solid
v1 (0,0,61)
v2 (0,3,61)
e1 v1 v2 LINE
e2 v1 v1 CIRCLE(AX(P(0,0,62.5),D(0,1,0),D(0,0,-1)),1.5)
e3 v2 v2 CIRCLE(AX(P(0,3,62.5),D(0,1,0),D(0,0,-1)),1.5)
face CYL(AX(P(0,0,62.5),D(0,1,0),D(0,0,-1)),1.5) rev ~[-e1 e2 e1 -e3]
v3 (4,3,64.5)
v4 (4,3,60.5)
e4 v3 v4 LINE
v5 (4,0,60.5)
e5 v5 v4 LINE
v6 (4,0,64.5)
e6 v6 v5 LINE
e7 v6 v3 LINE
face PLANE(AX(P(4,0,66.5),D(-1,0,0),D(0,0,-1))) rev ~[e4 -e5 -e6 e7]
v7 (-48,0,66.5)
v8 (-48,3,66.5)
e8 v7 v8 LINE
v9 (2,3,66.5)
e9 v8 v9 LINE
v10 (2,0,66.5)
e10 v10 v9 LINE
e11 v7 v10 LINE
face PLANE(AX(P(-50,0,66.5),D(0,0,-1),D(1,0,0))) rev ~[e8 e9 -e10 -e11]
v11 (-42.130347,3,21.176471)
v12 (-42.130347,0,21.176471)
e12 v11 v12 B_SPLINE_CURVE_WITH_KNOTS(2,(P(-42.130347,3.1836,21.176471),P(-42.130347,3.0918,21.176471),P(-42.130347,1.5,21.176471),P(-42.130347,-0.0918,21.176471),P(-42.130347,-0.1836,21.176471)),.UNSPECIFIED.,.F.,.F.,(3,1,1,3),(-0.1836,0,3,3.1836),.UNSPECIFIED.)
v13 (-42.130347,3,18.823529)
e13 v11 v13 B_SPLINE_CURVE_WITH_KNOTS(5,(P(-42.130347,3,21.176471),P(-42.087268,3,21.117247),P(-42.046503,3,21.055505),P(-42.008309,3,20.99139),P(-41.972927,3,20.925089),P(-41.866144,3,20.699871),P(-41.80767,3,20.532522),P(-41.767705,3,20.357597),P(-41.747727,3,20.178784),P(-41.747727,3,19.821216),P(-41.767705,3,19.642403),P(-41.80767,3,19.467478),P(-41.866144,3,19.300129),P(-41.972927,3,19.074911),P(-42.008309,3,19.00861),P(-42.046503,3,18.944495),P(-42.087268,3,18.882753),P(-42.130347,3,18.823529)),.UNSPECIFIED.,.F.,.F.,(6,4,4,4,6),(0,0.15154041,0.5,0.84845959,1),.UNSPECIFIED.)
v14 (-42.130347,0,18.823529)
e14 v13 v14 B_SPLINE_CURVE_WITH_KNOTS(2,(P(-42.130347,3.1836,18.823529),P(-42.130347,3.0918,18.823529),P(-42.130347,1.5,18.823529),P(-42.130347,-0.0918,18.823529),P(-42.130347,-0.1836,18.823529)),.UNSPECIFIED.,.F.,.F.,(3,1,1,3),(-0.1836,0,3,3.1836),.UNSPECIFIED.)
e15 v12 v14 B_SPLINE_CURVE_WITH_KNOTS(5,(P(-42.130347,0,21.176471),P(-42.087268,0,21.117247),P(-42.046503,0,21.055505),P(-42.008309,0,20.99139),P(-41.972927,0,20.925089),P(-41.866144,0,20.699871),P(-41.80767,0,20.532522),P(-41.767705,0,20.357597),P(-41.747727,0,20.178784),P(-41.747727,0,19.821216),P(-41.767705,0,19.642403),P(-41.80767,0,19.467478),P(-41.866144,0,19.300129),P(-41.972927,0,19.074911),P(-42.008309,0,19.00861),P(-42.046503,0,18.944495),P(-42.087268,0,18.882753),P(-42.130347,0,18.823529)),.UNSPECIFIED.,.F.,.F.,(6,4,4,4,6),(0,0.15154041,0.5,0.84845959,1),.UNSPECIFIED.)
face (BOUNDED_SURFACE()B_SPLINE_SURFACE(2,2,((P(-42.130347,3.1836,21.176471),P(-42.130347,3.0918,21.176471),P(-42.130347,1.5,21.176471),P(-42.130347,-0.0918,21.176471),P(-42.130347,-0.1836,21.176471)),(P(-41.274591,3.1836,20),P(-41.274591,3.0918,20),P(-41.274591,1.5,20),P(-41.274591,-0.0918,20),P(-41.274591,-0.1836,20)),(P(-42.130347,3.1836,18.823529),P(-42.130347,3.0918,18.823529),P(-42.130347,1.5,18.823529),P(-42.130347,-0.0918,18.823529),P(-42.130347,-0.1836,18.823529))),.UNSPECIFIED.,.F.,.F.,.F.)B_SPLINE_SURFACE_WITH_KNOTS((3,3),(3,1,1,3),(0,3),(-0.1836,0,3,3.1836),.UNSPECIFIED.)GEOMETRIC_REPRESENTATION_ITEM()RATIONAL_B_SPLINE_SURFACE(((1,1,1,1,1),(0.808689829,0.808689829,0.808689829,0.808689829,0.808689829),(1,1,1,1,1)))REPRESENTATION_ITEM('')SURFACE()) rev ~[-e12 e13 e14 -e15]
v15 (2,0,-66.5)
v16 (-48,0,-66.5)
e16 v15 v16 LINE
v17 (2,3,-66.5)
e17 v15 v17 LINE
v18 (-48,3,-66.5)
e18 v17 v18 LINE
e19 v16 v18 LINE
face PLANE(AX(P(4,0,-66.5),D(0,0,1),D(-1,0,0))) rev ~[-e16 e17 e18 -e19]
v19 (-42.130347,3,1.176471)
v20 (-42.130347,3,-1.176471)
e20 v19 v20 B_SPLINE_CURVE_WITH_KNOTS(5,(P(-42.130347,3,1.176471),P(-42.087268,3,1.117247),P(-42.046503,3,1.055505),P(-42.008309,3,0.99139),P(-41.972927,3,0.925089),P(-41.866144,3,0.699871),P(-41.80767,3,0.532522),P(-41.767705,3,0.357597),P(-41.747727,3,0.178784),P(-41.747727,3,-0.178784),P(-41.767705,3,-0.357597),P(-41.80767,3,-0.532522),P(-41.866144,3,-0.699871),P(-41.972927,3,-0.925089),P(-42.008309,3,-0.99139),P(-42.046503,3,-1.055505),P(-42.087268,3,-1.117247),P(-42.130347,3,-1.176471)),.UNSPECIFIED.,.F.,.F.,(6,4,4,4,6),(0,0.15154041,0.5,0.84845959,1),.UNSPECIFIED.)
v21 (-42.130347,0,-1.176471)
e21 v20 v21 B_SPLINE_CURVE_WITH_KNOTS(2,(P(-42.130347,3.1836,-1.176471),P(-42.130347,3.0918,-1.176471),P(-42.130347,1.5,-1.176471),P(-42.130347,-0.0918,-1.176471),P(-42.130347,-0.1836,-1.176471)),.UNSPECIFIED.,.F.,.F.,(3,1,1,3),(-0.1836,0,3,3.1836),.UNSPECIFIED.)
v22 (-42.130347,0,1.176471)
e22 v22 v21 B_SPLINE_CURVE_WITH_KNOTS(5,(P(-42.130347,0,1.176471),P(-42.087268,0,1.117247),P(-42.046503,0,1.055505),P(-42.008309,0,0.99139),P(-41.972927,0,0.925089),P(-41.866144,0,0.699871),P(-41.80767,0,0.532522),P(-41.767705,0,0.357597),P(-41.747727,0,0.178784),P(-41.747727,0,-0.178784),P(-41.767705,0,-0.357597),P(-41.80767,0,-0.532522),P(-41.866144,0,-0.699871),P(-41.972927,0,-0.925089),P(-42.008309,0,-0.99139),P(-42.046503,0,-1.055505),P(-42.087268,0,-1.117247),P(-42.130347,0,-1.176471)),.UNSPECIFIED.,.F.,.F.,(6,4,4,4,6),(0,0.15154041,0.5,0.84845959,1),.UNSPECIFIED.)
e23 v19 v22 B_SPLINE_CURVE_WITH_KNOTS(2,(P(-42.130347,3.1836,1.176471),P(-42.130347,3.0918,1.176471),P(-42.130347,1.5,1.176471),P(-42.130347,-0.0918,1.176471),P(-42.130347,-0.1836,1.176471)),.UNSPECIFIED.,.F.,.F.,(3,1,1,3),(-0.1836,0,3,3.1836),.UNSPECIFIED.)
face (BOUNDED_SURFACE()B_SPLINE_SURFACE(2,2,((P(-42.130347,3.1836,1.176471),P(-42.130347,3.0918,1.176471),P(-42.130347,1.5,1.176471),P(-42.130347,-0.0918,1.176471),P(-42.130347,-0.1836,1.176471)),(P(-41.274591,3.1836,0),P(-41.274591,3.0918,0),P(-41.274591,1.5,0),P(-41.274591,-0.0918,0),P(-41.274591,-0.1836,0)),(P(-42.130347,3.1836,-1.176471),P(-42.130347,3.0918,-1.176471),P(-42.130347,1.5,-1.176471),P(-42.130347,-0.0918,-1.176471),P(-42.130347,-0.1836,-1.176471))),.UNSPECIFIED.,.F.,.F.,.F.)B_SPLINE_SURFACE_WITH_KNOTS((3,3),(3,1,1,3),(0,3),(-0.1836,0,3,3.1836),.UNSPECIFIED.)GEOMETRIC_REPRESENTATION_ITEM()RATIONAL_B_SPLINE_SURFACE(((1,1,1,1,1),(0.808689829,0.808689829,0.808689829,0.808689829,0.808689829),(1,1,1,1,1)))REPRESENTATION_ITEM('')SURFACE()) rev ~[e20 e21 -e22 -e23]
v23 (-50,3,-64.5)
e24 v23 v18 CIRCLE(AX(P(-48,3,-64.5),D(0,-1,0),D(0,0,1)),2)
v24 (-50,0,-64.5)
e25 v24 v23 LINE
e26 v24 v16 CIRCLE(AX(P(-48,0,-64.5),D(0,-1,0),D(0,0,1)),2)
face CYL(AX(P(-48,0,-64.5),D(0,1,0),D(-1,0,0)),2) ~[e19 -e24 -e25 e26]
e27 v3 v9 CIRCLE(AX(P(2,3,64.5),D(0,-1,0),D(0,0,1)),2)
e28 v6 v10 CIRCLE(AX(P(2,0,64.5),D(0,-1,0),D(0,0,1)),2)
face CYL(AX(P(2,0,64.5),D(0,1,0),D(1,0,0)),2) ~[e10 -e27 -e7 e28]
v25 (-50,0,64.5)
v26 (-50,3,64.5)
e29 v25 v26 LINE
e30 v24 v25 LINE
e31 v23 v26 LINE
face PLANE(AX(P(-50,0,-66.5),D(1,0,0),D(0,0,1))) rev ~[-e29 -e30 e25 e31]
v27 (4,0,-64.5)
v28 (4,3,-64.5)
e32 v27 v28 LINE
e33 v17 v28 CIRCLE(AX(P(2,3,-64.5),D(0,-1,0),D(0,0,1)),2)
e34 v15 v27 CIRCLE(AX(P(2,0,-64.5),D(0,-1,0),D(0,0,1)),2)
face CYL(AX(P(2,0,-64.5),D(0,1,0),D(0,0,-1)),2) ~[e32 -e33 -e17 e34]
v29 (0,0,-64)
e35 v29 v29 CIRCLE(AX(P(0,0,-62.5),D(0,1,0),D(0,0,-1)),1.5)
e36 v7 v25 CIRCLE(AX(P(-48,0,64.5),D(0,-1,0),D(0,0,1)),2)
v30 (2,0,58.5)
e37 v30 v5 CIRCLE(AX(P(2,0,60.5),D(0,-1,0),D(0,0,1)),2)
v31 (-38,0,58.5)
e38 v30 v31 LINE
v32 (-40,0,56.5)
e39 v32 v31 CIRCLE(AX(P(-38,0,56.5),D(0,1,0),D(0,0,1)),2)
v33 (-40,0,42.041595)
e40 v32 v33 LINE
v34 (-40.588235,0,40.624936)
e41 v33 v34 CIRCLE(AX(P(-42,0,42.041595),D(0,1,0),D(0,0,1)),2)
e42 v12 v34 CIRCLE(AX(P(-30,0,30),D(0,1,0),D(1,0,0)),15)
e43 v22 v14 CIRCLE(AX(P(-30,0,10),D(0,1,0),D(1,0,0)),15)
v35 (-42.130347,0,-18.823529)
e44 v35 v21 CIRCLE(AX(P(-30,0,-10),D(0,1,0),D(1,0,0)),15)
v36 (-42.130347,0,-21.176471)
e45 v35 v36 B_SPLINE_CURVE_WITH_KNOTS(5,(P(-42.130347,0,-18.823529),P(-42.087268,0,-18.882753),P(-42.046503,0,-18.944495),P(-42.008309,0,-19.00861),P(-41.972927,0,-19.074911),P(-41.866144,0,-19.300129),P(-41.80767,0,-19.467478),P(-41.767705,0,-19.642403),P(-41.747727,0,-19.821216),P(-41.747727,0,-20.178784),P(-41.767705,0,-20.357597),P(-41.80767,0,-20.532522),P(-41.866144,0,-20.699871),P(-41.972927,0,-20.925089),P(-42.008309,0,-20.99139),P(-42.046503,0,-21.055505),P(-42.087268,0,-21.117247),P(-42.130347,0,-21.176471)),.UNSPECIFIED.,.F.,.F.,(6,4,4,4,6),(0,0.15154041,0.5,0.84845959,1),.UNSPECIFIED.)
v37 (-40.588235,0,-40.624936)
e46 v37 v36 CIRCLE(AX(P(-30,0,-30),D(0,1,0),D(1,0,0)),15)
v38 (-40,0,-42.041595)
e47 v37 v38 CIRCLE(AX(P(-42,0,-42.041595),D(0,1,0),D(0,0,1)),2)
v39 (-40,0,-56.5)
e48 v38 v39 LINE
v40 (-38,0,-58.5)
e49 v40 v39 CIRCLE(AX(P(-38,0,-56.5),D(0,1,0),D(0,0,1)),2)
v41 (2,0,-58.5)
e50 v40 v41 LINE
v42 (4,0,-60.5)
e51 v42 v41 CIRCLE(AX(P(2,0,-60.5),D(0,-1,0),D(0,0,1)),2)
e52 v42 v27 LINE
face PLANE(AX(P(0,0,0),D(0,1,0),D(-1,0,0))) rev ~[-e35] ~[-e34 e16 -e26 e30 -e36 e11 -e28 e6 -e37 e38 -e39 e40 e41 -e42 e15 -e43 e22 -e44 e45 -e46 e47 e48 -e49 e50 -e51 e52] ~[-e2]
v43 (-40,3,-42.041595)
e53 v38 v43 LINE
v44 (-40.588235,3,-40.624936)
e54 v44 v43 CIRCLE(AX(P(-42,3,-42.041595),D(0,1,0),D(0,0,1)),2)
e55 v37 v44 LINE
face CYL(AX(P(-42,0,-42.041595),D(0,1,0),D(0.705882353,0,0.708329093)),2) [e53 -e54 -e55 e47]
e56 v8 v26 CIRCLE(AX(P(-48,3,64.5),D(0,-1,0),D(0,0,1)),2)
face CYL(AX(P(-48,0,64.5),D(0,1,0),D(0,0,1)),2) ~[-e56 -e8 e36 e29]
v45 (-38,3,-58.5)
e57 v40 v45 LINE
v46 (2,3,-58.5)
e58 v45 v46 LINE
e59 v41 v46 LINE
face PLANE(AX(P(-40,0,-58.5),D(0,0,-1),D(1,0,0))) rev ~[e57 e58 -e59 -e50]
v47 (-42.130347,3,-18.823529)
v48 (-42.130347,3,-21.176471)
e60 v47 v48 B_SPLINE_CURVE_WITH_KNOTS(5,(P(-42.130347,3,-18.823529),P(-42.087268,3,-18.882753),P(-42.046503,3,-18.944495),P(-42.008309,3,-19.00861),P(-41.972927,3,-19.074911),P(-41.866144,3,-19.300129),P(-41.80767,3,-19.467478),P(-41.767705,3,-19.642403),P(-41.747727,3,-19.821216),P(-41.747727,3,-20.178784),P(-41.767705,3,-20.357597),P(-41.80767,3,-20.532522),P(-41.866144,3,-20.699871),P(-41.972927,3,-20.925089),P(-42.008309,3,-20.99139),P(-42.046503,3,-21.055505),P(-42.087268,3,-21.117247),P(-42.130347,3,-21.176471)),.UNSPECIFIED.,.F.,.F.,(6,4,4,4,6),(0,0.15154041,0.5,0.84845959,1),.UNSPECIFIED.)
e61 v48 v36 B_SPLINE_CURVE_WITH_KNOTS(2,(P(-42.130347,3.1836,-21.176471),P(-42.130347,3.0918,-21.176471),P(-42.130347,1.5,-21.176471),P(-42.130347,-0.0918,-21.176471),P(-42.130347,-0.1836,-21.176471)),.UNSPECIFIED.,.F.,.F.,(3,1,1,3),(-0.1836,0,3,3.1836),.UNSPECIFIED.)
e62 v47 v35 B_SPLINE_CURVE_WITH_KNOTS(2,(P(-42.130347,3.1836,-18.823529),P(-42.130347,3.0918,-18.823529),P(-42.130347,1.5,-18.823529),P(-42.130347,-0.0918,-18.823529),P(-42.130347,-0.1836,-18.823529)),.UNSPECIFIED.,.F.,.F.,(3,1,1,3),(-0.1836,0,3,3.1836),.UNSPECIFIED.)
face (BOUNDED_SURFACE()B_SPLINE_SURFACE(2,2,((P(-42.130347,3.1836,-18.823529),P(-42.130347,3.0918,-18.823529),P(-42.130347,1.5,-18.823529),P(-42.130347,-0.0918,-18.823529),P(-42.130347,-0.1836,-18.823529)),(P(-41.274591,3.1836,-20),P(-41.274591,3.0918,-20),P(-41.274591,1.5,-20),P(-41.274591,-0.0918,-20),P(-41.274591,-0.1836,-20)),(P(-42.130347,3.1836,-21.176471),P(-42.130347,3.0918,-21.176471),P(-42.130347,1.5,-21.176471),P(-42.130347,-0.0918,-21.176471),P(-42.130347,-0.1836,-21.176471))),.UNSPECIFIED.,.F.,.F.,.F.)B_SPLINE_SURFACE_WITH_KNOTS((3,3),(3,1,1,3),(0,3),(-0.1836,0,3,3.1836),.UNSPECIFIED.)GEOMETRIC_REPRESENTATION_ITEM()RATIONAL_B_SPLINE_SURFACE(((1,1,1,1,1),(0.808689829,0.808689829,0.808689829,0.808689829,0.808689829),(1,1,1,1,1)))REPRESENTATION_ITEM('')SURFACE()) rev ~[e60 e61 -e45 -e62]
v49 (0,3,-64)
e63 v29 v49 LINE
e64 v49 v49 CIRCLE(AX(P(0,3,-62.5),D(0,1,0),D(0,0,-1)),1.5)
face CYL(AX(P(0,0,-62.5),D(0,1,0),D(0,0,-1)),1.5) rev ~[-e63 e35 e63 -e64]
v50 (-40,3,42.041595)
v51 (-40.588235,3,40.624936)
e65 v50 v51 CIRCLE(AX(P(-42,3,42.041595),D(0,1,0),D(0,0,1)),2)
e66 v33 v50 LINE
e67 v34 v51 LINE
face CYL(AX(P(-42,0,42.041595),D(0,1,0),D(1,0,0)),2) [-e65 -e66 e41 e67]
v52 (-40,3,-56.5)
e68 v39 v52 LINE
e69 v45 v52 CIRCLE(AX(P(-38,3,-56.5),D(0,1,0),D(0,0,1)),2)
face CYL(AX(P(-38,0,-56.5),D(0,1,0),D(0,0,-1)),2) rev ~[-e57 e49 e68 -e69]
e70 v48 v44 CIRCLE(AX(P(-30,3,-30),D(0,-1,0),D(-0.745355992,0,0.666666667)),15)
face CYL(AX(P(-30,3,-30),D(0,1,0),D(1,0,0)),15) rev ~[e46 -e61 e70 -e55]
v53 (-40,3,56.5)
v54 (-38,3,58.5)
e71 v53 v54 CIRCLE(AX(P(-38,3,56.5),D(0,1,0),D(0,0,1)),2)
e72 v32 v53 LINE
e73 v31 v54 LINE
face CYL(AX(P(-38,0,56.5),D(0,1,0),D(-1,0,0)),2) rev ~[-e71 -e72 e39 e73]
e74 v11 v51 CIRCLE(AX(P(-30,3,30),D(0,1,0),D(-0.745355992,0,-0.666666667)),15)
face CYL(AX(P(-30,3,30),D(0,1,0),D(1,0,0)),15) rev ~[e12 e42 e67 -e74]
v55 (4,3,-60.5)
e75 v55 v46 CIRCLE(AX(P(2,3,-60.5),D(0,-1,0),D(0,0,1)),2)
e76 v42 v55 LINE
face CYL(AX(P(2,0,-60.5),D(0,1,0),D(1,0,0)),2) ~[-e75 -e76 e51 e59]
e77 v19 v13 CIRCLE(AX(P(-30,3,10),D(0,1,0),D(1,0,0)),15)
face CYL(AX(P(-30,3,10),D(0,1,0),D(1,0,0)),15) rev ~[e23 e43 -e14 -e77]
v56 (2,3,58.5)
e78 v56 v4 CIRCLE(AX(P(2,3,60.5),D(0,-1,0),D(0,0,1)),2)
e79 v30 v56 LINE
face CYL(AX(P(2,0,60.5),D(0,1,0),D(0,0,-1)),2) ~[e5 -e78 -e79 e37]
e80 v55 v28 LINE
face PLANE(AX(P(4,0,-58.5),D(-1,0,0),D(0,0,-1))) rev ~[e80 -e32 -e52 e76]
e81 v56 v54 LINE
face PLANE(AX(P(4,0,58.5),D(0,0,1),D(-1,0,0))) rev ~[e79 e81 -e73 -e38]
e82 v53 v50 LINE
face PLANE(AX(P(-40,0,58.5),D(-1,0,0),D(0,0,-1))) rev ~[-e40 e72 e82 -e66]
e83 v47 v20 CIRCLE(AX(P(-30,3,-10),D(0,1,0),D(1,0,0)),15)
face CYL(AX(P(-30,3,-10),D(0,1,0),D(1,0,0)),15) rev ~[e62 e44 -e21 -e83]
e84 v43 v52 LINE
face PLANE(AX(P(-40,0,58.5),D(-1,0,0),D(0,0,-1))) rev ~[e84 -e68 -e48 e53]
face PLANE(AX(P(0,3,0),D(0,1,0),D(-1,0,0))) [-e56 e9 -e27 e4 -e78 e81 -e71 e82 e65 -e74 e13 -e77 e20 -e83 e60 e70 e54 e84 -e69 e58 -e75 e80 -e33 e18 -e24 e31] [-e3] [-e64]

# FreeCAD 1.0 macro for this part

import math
import FreeCAD as App
import Part
import Sketcher
from FreeCAD import Vector


def edges_at(feature, points):
    """Names of the edges that pass closest to the given points."""
    edges = feature.Shape.Edges
    near = lambda p: min(range(len(edges)), key=lambda i: edges[i].distToShape(Part.Vertex(*p))[0])
    return sorted({f"Edge{near(p) + 1}" for p in points})

doc = App.newDocument("Part")
body = doc.addObject("PartDesign::Body", "Body")

sketch1 = body.newObject("Sketcher::SketchObject", "Sketch")
sketch1.AttachmentSupport = (doc.getObject("XZ_Plane"), [""])
sketch1.MapMode = "FlatFace"
sketch1.addGeometry(Part.LineSegment(Vector(-40, 58.5, 0), Vector(-40, -58.5, 0)), False)
sketch1.addGeometry(Part.LineSegment(Vector(-40, -58.5, 0), Vector(4, -58.5, 0)), False)
sketch1.addGeometry(Part.LineSegment(Vector(4, -58.5, 0), Vector(4, -66.5, 0)), False)
sketch1.addGeometry(Part.LineSegment(Vector(4, -66.5, 0), Vector(-50, -66.5, 0)), False)
sketch1.addGeometry(Part.LineSegment(Vector(-50, -66.5, 0), Vector(-50, 66.5, 0)), False)
sketch1.addGeometry(Part.LineSegment(Vector(-50, 66.5, 0), Vector(4, 66.5, 0)), False)
sketch1.addGeometry(Part.LineSegment(Vector(4, 66.5, 0), Vector(4, 58.5, 0)), False)
sketch1.addGeometry(Part.LineSegment(Vector(4, 58.5, 0), Vector(-40, 58.5, 0)), False)
sketch1.addConstraint(Sketcher.Constraint("Coincident", 0, 2, 1, 1))
sketch1.addConstraint(Sketcher.Constraint("Coincident", 1, 2, 2, 1))
sketch1.addConstraint(Sketcher.Constraint("Coincident", 2, 2, 3, 1))
sketch1.addConstraint(Sketcher.Constraint("Coincident", 3, 2, 4, 1))
sketch1.addConstraint(Sketcher.Constraint("Coincident", 4, 2, 5, 1))
sketch1.addConstraint(Sketcher.Constraint("Coincident", 5, 2, 6, 1))
sketch1.addConstraint(Sketcher.Constraint("Coincident", 6, 2, 7, 1))
sketch1.addConstraint(Sketcher.Constraint("Coincident", 7, 2, 0, 1))
sketch1.addConstraint(Sketcher.Constraint("Vertical", 0))
sketch1.addConstraint(Sketcher.Constraint("Horizontal", 1))
sketch1.addConstraint(Sketcher.Constraint("Vertical", 2))
sketch1.addConstraint(Sketcher.Constraint("Horizontal", 3))
sketch1.addConstraint(Sketcher.Constraint("Vertical", 4))
sketch1.addConstraint(Sketcher.Constraint("Horizontal", 5))
sketch1.addConstraint(Sketcher.Constraint("Vertical", 6))
sketch1.addConstraint(Sketcher.Constraint("Horizontal", 7))
sketch1.addConstraint(Sketcher.Constraint("Symmetric", 2, 2, 5, 2, -1))
sketch1.addConstraint(Sketcher.Constraint("Equal", 2, 6))
sketch1.addConstraint(Sketcher.Constraint("DistanceY", 2, 2, 2, 1, 8.0))
sketch1.addConstraint(Sketcher.Constraint("DistanceX", -1, 1, 1, 2, 4.0))
sketch1.addConstraint(Sketcher.Constraint("DistanceX", 3, 2, -1, 1, 50.0))
sketch1.addConstraint(Sketcher.Constraint("DistanceX", 3, 2, 0, 2, 10.0))
sketch1.addConstraint(Sketcher.Constraint("DistanceY", 0, 2, 0, 1, 117.0))
pad1 = body.newObject("PartDesign::Pad", "Pad")
pad1.Profile = sketch1
pad1.Length = 3
pad1.Reversed = True

sketch2 = body.newObject("Sketcher::SketchObject", "Sketch001")
sketch2.AttachmentSupport = (doc.getObject("XZ_Plane"), [""])
sketch2.MapMode = "FlatFace"
sketch2.addGeometry(Part.Circle(Vector(0, -62.5, 0), Vector(0, 0, 1), 1.5), False)
sketch2.addGeometry(Part.Circle(Vector(0, 62.5, 0), Vector(0, 0, 1), 1.5), False)
sketch2.addConstraint(Sketcher.Constraint("Equal", 0, 1))
sketch2.addConstraint(Sketcher.Constraint("Symmetric", 0, 3, 1, 3, -1, 1))
sketch2.addConstraint(Sketcher.Constraint("PointOnObject", 0, 3, -2))
sketch2.addConstraint(Sketcher.Constraint("Diameter", 0, 3.0))
sketch2.addConstraint(Sketcher.Constraint("DistanceY", 0, 3, 1, 3, 125.0))
doc.recompute()
hole = body.newObject("PartDesign::Hole", "Hole")
hole.Profile = sketch2
hole.ThreadType = "None"
hole.Diameter = 3
hole.DepthType = "ThroughAll"

sketch3 = body.newObject("Sketcher::SketchObject", "Sketch002")
sketch3.AttachmentSupport = (doc.getObject("XZ_Plane"), [""])
sketch3.MapMode = "FlatFace"
sketch3.AttachmentOffset = App.Placement(Vector(0, 0, -3), App.Rotation())
sketch3.addGeometry(Part.ArcOfCircle(Part.Circle(Vector(-30, -10, 0), Vector(0, 0, 1), 15), math.radians(138.189685), math.radians(221.810315)), False)
sketch3.addGeometry(Part.ArcOfCircle(Part.Circle(Vector(-30, 10, 0), Vector(0, 0, 1), 15), math.radians(138.189685), math.radians(221.810315)), False)
sketch3.addGeometry(Part.ArcOfCircle(Part.Circle(Vector(-30, 30, 0), Vector(0, 0, 1), 15), math.radians(-41.810315), math.radians(221.810315)), False)
sketch3.addGeometry(Part.ArcOfCircle(Part.Circle(Vector(-30, 10, 0), Vector(0, 0, 1), 15), math.radians(-41.810315), math.radians(41.810315)), False)
sketch3.addGeometry(Part.ArcOfCircle(Part.Circle(Vector(-30, -10, 0), Vector(0, 0, 1), 15), math.radians(-41.810315), math.radians(41.810315)), False)
sketch3.addGeometry(Part.ArcOfCircle(Part.Circle(Vector(-30, -30, 0), Vector(0, 0, 1), 15), math.radians(138.189685), math.radians(401.810315)), False)
sketch3.addConstraint(Sketcher.Constraint("Coincident", 0, 1, 1, 2))
sketch3.addConstraint(Sketcher.Constraint("Coincident", 1, 1, 2, 2))
sketch3.addConstraint(Sketcher.Constraint("Coincident", 2, 1, 3, 2))
sketch3.addConstraint(Sketcher.Constraint("Coincident", 3, 1, 4, 2))
sketch3.addConstraint(Sketcher.Constraint("Coincident", 4, 1, 5, 2))
sketch3.addConstraint(Sketcher.Constraint("Coincident", 5, 1, 0, 2))
sketch3.addConstraint(Sketcher.Constraint("Coincident", 3, 3, 1, 3))
sketch3.addConstraint(Sketcher.Constraint("Coincident", 4, 3, 0, 3))
sketch3.addConstraint(Sketcher.Constraint("Equal", 0, 1))
sketch3.addConstraint(Sketcher.Constraint("Equal", 1, 2))
sketch3.addConstraint(Sketcher.Constraint("Equal", 2, 3))
sketch3.addConstraint(Sketcher.Constraint("Equal", 3, 4))
sketch3.addConstraint(Sketcher.Constraint("Equal", 4, 5))
sketch3.addConstraint(Sketcher.Constraint("Symmetric", 0, 3, 1, 3, -1))
sketch3.addConstraint(Sketcher.Constraint("Symmetric", 2, 3, 5, 3, -1))
sketch3.addConstraint(Sketcher.Constraint("Horizontal", 1, 1, 2, 1))
sketch3.addConstraint(Sketcher.Constraint("Vertical", 0, 1, 1, 1))
sketch3.addConstraint(Sketcher.Constraint("Radius", 0, 15.0))
sketch3.addConstraint(Sketcher.Constraint("DistanceX", 0, 3, -1, 1, 30.0))
sketch3.addConstraint(Sketcher.Constraint("DistanceY", 0, 3, -1, 1, 10.0))
pocket1 = body.newObject("PartDesign::Pocket", "Pocket")
pocket1.Profile = sketch3
pocket1.Type = "ThroughAll"
pocket1.Reversed = True
doc.recompute()

fillet = body.newObject("PartDesign::Fillet", "Fillet")
fillet.Base = (pocket1, edges_at(pocket1, [
    (-50, 1.5, 66.5),
    (-40, 1.5, 58.5),
    (4, 1.5, 66.5),
    (4, 1.5, 58.5),
    (4, 1.5, -58.5),
    (4, 1.5, -66.5),
    (-40, 1.5, -58.5),
    (-50, 1.5, -66.5),
]))
fillet.Radius = 2
doc.recompute()

fillet2 = body.newObject("PartDesign::Fillet", "Fillet001")
fillet2.Base = (fillet, edges_at(fillet, [
    (-40, 1.5, 41.18),
    (-41.18, 1.5, 20),
    (-41.18, 1.5, 0),
    (-41.18, 1.5, -20),
    (-40, 1.5, -41.18),
]))
fillet2.Radius = 2

doc.recompute()
